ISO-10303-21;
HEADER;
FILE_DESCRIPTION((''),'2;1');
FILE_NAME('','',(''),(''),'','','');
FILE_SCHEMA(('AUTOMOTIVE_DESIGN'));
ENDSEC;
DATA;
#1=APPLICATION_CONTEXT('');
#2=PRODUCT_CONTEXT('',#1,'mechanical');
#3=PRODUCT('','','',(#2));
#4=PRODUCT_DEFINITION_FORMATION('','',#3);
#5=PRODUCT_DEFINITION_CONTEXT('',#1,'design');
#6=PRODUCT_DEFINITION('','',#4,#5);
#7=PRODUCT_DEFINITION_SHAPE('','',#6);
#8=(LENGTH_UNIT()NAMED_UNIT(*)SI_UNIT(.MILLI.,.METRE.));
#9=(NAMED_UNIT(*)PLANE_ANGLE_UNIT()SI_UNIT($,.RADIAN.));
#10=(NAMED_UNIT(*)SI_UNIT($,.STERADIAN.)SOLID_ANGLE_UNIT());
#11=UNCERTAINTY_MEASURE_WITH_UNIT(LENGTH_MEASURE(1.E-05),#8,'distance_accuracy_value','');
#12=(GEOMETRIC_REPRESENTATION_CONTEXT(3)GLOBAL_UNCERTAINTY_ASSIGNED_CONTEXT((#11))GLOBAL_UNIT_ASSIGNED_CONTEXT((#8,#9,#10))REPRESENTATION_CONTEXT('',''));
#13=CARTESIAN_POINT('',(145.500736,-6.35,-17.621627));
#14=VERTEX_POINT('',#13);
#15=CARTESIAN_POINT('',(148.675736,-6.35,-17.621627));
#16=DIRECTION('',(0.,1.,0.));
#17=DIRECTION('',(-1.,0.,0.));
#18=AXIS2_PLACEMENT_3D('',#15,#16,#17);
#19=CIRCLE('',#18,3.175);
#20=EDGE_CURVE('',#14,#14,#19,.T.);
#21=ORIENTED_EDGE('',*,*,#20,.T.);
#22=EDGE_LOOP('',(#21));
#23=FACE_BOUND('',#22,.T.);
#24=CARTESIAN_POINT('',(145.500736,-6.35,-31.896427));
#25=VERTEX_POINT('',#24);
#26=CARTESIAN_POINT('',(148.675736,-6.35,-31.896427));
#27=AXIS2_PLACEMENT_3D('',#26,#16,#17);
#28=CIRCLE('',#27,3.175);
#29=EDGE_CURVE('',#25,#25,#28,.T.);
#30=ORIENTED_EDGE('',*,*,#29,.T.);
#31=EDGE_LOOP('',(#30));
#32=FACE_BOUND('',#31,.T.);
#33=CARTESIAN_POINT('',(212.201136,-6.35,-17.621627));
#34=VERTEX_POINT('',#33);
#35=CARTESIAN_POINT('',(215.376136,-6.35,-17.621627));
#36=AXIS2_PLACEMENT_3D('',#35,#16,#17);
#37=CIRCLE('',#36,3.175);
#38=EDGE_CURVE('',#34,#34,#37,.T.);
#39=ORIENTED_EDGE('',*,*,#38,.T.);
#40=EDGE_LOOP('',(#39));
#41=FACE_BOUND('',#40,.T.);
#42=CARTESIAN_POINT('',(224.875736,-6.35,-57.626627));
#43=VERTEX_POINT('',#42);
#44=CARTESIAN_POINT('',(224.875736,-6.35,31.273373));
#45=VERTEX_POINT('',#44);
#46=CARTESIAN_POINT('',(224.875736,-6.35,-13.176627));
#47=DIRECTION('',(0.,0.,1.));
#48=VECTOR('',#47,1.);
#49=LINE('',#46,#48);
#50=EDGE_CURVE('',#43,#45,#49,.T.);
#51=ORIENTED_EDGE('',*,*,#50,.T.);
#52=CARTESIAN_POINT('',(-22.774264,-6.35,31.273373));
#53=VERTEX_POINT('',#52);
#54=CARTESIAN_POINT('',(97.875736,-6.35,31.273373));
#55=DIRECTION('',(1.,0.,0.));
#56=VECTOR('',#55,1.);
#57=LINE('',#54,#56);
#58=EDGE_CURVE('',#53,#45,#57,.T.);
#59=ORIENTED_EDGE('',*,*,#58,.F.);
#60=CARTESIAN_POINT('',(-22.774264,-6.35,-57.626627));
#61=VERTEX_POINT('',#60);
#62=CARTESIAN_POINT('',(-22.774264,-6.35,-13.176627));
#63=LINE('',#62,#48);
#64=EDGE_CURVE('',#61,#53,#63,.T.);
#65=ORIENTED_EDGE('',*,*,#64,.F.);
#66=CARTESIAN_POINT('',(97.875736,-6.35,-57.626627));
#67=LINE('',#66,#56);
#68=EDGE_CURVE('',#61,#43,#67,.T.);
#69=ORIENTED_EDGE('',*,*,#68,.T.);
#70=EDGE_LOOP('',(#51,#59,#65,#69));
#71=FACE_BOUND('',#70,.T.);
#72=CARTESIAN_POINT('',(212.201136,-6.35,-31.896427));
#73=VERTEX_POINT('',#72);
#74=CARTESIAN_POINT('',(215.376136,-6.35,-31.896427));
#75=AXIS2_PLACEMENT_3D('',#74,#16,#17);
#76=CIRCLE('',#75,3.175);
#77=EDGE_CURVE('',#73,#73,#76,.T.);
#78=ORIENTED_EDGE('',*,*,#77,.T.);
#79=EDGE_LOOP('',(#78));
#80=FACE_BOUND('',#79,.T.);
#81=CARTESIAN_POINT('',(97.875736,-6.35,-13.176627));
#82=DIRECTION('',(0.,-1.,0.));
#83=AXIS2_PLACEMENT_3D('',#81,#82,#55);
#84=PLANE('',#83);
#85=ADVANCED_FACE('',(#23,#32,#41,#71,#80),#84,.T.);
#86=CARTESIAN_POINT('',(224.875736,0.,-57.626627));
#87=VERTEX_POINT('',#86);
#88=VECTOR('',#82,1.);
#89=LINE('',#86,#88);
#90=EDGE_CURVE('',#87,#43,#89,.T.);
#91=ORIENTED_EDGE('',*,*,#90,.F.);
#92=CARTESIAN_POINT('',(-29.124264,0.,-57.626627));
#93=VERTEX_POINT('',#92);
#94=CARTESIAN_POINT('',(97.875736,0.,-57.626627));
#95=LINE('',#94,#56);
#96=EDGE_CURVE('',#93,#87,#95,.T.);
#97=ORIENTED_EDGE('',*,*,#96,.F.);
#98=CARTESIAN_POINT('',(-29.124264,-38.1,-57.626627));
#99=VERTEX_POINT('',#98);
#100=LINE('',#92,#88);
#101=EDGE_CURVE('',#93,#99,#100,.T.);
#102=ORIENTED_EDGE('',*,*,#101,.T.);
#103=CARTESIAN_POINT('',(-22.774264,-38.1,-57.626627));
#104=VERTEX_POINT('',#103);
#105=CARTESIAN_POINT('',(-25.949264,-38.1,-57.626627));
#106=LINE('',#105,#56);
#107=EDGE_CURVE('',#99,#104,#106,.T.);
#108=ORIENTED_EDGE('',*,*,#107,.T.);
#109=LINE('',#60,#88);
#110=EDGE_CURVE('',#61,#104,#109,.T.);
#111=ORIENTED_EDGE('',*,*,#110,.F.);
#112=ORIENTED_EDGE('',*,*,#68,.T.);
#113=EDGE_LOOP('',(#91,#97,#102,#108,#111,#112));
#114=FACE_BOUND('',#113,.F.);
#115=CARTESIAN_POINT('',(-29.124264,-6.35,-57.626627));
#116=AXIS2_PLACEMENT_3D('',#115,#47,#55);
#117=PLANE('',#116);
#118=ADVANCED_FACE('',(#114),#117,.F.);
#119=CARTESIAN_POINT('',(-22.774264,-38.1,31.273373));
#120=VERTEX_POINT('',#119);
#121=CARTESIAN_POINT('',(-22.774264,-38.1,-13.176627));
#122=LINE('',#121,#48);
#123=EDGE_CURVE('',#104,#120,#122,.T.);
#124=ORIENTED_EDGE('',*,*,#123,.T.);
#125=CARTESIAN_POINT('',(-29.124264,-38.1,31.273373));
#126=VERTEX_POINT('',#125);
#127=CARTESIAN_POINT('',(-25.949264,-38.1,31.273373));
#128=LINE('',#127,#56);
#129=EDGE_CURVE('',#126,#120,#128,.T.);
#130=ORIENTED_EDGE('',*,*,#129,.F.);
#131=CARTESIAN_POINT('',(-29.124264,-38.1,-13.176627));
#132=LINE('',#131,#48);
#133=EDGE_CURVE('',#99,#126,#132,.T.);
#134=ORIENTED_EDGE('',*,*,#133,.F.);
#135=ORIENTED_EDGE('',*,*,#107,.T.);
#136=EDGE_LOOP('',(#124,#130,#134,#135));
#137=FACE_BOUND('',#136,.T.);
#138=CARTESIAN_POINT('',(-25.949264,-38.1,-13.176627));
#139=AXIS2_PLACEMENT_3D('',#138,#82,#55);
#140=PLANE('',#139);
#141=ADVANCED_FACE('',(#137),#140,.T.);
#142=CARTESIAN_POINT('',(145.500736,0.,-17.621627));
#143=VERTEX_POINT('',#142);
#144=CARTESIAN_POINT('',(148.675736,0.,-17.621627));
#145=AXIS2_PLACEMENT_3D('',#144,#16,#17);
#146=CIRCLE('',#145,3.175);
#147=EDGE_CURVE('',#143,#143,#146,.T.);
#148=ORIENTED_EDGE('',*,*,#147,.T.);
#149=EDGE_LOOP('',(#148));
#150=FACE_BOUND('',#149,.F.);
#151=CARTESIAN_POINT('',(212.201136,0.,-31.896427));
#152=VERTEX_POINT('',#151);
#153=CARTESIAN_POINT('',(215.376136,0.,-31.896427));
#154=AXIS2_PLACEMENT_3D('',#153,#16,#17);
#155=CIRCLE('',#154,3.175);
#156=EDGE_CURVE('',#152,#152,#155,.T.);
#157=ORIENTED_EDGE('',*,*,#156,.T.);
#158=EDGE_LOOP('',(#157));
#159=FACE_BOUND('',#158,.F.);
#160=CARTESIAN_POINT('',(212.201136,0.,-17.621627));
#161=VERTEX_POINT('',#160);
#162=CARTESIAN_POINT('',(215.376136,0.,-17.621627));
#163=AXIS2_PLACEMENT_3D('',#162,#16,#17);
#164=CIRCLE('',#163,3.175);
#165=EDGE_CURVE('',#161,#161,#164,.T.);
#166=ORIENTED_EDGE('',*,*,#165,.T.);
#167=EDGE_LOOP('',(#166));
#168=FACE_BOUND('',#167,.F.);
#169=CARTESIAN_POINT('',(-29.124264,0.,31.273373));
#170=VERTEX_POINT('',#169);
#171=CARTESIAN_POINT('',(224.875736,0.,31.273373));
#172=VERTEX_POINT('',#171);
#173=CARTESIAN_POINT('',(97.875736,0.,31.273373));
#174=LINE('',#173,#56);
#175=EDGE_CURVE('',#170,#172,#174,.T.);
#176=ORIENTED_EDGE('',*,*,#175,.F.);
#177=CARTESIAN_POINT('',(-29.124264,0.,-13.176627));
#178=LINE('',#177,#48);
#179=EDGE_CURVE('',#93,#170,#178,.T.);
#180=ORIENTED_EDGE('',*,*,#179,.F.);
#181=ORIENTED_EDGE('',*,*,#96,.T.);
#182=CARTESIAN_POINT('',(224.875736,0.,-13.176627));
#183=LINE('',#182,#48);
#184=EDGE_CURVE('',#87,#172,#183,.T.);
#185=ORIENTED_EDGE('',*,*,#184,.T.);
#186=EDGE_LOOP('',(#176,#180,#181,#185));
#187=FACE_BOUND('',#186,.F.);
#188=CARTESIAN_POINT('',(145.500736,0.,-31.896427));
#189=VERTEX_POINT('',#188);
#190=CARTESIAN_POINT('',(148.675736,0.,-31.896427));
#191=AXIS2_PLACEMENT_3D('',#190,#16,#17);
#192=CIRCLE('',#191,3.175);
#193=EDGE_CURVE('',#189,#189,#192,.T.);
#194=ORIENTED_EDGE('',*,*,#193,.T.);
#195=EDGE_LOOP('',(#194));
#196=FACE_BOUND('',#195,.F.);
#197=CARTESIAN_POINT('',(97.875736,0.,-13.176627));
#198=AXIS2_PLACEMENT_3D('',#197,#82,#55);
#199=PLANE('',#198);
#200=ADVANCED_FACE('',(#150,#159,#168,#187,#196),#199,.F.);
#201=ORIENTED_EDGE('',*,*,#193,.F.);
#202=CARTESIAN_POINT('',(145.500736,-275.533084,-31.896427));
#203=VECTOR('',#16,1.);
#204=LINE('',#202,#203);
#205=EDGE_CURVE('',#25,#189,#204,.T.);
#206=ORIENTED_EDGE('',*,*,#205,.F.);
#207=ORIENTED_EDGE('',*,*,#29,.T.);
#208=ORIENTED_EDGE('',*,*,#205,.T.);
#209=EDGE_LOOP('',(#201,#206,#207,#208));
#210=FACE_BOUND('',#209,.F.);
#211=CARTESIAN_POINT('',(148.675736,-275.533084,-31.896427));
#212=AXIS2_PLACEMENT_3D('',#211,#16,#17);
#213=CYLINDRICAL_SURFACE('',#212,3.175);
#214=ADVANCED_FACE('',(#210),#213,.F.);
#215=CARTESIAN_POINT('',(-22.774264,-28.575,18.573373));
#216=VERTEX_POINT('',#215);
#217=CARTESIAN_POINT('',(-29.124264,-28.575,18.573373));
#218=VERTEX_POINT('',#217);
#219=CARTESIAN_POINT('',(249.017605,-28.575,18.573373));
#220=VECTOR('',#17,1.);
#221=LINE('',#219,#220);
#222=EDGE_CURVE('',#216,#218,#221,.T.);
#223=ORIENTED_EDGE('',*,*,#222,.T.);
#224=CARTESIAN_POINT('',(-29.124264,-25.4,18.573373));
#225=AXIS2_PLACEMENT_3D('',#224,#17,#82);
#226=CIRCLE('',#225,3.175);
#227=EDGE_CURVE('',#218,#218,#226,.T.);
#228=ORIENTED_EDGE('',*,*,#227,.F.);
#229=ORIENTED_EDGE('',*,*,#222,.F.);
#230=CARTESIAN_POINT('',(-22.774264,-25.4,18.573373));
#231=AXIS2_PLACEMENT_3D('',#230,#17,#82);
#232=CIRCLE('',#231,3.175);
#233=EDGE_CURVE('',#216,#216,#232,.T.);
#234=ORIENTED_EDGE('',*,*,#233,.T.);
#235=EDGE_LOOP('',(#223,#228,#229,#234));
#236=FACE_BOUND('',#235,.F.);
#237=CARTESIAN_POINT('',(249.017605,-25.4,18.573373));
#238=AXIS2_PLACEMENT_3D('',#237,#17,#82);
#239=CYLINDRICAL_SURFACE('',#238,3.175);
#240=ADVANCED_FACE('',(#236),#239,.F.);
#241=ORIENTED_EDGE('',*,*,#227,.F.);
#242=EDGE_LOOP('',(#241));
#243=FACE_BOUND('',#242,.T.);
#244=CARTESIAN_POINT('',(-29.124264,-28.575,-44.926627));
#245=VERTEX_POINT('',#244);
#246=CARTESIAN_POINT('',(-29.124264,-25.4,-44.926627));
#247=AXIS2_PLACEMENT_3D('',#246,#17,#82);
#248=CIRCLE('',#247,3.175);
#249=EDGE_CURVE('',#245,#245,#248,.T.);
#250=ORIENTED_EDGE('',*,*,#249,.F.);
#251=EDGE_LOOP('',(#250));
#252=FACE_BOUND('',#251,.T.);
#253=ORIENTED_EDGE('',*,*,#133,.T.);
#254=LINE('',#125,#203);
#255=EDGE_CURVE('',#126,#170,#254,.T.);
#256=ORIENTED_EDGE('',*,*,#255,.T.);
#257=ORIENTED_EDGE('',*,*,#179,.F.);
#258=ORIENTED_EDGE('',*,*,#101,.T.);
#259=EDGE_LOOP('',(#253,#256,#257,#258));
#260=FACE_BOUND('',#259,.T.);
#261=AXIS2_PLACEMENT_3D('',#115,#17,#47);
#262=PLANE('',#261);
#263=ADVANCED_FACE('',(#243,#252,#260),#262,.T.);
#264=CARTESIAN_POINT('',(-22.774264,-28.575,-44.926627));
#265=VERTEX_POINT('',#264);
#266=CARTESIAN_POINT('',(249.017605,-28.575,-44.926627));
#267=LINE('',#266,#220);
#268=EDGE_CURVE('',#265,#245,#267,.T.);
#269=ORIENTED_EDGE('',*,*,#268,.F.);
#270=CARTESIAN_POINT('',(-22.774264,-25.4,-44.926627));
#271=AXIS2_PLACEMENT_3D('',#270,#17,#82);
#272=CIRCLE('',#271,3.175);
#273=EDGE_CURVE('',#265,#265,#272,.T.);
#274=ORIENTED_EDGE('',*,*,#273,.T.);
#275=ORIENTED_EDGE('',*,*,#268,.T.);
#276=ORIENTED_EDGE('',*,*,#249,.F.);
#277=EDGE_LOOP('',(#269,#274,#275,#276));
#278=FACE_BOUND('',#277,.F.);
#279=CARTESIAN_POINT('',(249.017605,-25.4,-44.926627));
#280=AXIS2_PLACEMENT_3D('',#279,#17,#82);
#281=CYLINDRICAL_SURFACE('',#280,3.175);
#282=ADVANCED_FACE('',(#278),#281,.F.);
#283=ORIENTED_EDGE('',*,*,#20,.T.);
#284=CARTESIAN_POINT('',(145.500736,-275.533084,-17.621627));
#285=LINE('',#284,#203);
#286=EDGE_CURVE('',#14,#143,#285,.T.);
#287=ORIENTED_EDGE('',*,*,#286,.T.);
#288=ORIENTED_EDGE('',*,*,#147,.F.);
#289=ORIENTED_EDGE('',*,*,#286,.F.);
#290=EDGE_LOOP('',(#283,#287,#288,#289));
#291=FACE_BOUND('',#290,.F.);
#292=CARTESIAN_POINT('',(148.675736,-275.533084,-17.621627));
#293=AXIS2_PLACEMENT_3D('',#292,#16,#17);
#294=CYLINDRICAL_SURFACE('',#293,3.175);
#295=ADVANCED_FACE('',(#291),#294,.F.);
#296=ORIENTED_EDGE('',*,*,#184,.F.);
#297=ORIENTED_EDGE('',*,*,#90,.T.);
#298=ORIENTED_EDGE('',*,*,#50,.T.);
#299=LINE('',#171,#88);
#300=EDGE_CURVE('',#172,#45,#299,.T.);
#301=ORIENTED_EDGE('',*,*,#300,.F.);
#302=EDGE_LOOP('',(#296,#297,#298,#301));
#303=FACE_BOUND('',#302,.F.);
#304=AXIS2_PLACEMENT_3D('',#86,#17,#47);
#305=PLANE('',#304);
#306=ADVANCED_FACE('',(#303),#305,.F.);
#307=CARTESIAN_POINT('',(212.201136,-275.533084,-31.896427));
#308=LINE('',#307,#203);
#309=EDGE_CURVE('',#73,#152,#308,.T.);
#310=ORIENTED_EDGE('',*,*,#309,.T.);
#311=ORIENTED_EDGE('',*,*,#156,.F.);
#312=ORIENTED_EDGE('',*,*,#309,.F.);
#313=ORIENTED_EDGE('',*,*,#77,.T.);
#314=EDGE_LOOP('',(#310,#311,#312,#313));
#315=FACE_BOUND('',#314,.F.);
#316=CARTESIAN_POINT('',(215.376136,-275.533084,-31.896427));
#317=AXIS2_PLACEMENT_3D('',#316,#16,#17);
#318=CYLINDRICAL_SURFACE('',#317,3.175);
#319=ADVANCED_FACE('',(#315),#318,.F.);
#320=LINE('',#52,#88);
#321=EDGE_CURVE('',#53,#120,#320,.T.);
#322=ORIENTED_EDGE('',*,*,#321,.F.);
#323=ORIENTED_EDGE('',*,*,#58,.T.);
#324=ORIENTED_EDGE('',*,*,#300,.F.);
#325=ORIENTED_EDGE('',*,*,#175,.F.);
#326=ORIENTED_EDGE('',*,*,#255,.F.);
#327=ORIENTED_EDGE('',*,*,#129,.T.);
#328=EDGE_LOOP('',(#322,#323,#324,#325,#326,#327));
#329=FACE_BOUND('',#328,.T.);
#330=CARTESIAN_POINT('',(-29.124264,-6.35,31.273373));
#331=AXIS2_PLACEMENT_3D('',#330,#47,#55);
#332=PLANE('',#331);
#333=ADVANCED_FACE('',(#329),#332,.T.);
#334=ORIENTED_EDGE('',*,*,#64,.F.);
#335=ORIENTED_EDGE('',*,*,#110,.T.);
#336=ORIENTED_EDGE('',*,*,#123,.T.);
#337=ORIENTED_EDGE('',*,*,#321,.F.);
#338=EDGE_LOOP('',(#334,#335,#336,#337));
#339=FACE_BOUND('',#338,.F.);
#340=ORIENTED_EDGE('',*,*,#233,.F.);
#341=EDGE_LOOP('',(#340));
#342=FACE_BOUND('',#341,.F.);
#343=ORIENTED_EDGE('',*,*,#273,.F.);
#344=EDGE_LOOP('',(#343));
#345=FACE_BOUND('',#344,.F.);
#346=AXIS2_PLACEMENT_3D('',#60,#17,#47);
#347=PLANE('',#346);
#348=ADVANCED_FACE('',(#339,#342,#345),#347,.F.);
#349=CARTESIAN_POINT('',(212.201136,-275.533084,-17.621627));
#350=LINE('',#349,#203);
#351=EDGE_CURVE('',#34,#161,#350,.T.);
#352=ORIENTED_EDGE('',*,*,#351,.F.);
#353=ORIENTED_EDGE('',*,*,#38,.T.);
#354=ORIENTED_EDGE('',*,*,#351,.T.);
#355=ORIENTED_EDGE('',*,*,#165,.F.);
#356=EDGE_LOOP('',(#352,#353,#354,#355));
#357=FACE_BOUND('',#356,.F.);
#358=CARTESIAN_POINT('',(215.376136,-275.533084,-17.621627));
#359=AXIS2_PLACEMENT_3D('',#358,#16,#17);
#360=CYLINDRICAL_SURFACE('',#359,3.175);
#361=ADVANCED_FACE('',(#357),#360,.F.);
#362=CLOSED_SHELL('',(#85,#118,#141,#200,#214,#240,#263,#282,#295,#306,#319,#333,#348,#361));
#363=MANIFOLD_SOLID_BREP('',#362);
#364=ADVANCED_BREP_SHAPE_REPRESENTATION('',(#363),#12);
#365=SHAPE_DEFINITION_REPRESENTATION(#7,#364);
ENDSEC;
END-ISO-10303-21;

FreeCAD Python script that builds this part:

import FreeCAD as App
import Part
import Sketcher
Q = App.Units.Quantity


def add_polygon(sketch, points):
    """Adds a closed chain of lines whose ends are joined by coincident constraints."""
    first, n = sketch.GeometryCount, len(points)
    for a, b in zip(points, points[1:] + points[:1]):
        sketch.addGeometry(Part.LineSegment(App.Vector(*a, 0), App.Vector(*b, 0)), False)
    for i in range(n):
        sketch.addConstraint(Sketcher.Constraint("Coincident", first + i, 2, first + (i + 1) % n, 1))

doc = App.newDocument("Part")
body = doc.addObject("PartDesign::Body", "Body")

# Sketch on XZ plane
sketch1 = doc.addObject("Sketcher::SketchObject", "Sketch")
body.addObject(sketch1)
sketch1.AttachmentSupport = (doc.XZ_Plane, [""])
sketch1.MapMode = "FlatFace"
add_polygon(sketch1, [(-29.124264, 31.273373), (-29.124264, -57.626627), (224.875736, -57.626627), (224.875736, 31.273373)])  # lines 0-3
sketch1.addConstraint(Sketcher.Constraint("Vertical", 0))
sketch1.addConstraint(Sketcher.Constraint("Horizontal", 1))
sketch1.addConstraint(Sketcher.Constraint("Vertical", 2))
sketch1.addConstraint(Sketcher.Constraint("Horizontal", 3))
sketch1.addConstraint(Sketcher.Constraint("DistanceX", 1, 1, 1, 2, Q("10 in")))
sketch1.addConstraint(Sketcher.Constraint("DistanceY", 0, 2, 0, 1, Q("3.5 in")))
sketch1.addConstraint(Sketcher.Constraint("DistanceX", 0, 2, -1, 1, Q("29.124264 mm")))
sketch1.addConstraint(Sketcher.Constraint("DistanceY", 0, 2, -1, 1, Q("57.626627 mm")))
pad1 = doc.addObject("PartDesign::Pad", "Pad")
body.addObject(pad1)
pad1.Profile = sketch1
pad1.Length = Q("0.25 in")

# Sketch on XZ plane
sketch2 = doc.addObject("Sketcher::SketchObject", "Sketch001")
body.addObject(sketch2)
sketch2.AttachmentSupport = (doc.XZ_Plane, [""])
sketch2.MapMode = "FlatFace"
sketch2.AttachmentOffset = App.Placement(App.Vector(0, 0, 0.25 * 25.4), App.Rotation())
sketch2.addGeometry(Part.Circle(App.Vector(148.675736, -17.621627, 0), App.Vector(0, 0, 1), 3.175), False)
sketch2.addGeometry(Part.Circle(App.Vector(215.376136, -17.621627, 0), App.Vector(0, 0, 1), 3.175), False)
sketch2.addGeometry(Part.Circle(App.Vector(215.376136, -31.896427, 0), App.Vector(0, 0, 1), 3.175), False)
sketch2.addGeometry(Part.Circle(App.Vector(148.675736, -31.896427, 0), App.Vector(0, 0, 1), 3.175), False)
sketch2.addConstraint(Sketcher.Constraint("Equal", 0, 1))
sketch2.addConstraint(Sketcher.Constraint("Equal", 1, 2))
sketch2.addConstraint(Sketcher.Constraint("Equal", 2, 3))
sketch2.addConstraint(Sketcher.Constraint("Horizontal", 0, 3, 1, 3))
sketch2.addConstraint(Sketcher.Constraint("Horizontal", 2, 3, 3, 3))
sketch2.addConstraint(Sketcher.Constraint("Vertical", 1, 3, 2, 3))
sketch2.addConstraint(Sketcher.Constraint("Vertical", 0, 3, 3, 3))
sketch2.addConstraint(Sketcher.Constraint("Diameter", 0, Q("0.25 in")))
sketch2.addConstraint(Sketcher.Constraint("DistanceX", 0, 3, 1, 3, Q("2.626 in")))
sketch2.addConstraint(Sketcher.Constraint("DistanceY", 2, 3, 1, 3, Q("0.562 in")))
sketch2.addConstraint(Sketcher.Constraint("DistanceX", -1, 1, 0, 3, Q("148.675736 mm")))
sketch2.addConstraint(Sketcher.Constraint("DistanceY", 0, 3, -1, 1, Q("17.621627 mm")))
doc.recompute()
hole = doc.addObject("PartDesign::Hole", "Hole")
body.addObject(hole)
hole.Profile = sketch2
hole.ThreadType = "None"
hole.Diameter = Q("0.25 in")
hole.DepthType = "ThroughAll"

# Sketch on XZ plane
sketch3 = doc.addObject("Sketcher::SketchObject", "Sketch002")
body.addObject(sketch3)
sketch3.AttachmentSupport = (doc.XZ_Plane, [""])
sketch3.MapMode = "FlatFace"
sketch3.AttachmentOffset = App.Placement(App.Vector(0, 0, 0.25 * 25.4), App.Rotation())
add_polygon(sketch3, [(-29.124264, 31.273373), (-29.124264, -57.626627), (-22.774264, -57.626627), (-22.774264, 31.273373)])  # lines 0-3
sketch3.addConstraint(Sketcher.Constraint("Vertical", 0))
sketch3.addConstraint(Sketcher.Constraint("Horizontal", 1))
sketch3.addConstraint(Sketcher.Constraint("Vertical", 2))
sketch3.addConstraint(Sketcher.Constraint("Horizontal", 3))
sketch3.addConstraint(Sketcher.Constraint("DistanceY", 0, 2, 0, 1, Q("3.5 in")))
sketch3.addConstraint(Sketcher.Constraint("DistanceX", 1, 1, 1, 2, Q("0.25 in")))
sketch3.addConstraint(Sketcher.Constraint("DistanceX", 0, 2, -1, 1, Q("29.124264 mm")))
sketch3.addConstraint(Sketcher.Constraint("DistanceY", 0, 2, -1, 1, Q("57.626627 mm")))
pad2 = doc.addObject("PartDesign::Pad", "Pad001")
body.addObject(pad2)
pad2.Profile = sketch3
pad2.Length = Q("1.25 in")

# Sketch on YZ plane
sketch4 = doc.addObject("Sketcher::SketchObject", "Sketch003")
body.addObject(sketch4)
sketch4.AttachmentSupport = (doc.YZ_Plane, [""])
sketch4.MapMode = "FlatFace"
sketch4.AttachmentOffset = App.Placement(App.Vector(0, 0, -22.774264), App.Rotation())
sketch4.addGeometry(Part.Circle(App.Vector(-25.4, -44.926627, 0), App.Vector(0, 0, 1), 3.175), False)
sketch4.addGeometry(Part.Circle(App.Vector(-25.4, 18.573373, 0), App.Vector(0, 0, 1), 3.175), False)
sketch4.addConstraint(Sketcher.Constraint("Equal", 0, 1))
sketch4.addConstraint(Sketcher.Constraint("Vertical", 0, 3, 1, 3))
sketch4.addConstraint(Sketcher.Constraint("Diameter", 0, Q("0.25 in")))
sketch4.addConstraint(Sketcher.Constraint("DistanceX", 0, 3, -1, 1, Q("1 in")))
sketch4.addConstraint(Sketcher.Constraint("DistanceY", 0, 3, 1, 3, Q("2.5 in")))
sketch4.addConstraint(Sketcher.Constraint("DistanceY", 0, 3, -1, 1, Q("44.926627 mm")))
doc.recompute()
hole2 = doc.addObject("PartDesign::Hole", "Hole001")
body.addObject(hole2)
hole2.Profile = sketch4
hole2.ThreadType = "None"
hole2.Diameter = Q("0.25 in")
hole2.DepthType = "ThroughAll"

doc.recompute()
